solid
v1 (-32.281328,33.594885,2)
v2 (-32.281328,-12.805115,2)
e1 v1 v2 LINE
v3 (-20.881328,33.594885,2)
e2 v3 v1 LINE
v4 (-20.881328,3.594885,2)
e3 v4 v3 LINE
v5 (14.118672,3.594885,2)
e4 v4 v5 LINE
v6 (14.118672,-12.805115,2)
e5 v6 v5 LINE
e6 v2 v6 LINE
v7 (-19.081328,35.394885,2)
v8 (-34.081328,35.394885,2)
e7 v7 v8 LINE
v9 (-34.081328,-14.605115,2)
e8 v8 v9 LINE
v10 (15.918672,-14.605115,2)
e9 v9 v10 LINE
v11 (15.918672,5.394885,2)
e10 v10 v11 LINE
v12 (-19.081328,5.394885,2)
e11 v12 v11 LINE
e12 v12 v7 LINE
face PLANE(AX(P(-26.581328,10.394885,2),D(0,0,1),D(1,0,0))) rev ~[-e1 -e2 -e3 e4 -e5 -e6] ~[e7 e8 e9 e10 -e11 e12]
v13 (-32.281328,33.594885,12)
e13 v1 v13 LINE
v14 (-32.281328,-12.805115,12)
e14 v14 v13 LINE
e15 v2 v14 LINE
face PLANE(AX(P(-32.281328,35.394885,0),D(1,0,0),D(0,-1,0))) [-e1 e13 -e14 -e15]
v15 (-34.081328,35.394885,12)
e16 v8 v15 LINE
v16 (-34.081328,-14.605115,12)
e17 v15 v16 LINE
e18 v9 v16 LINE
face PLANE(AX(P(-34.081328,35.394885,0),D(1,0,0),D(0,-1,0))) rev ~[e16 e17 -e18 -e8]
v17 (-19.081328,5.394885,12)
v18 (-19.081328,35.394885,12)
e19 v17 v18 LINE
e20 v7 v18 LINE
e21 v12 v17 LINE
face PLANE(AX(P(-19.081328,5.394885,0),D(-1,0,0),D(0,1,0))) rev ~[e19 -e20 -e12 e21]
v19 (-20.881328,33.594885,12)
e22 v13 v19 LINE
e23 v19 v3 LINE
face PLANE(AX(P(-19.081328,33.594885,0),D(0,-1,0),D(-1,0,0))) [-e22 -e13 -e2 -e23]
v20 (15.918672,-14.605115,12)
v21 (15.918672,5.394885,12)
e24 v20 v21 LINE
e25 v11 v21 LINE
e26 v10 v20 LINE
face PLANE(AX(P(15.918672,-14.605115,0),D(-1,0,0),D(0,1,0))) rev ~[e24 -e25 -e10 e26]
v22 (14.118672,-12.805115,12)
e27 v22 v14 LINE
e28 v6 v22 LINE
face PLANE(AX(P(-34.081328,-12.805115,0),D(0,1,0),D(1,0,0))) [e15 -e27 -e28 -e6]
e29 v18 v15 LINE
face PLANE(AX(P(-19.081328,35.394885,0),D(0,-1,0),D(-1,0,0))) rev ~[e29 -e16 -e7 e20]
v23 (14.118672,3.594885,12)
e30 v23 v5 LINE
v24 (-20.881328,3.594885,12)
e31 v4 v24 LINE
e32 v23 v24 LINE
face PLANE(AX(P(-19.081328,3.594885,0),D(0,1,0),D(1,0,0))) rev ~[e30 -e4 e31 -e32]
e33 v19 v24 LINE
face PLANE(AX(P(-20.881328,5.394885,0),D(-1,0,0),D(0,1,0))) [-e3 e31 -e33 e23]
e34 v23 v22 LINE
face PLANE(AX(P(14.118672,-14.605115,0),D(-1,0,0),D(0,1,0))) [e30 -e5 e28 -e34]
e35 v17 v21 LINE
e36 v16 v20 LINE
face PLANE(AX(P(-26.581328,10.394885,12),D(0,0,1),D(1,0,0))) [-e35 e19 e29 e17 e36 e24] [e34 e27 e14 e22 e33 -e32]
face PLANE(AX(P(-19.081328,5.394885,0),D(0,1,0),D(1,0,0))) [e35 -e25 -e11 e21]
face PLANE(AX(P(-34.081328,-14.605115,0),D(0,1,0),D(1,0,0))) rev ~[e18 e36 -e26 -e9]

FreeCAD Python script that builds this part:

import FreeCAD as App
import Part
import Sketcher


def faces_at(feature, points):
    """Names of the faces that lie closest to the given points."""
    faces = feature.Shape.Faces
    near = lambda p: min(range(len(faces)), key=lambda i: faces[i].distToShape(Part.Vertex(*p))[0])
    return sorted({f"Face{near(p) + 1}" for p in points})


def add_polygon(sketch, points):
    """Adds a closed chain of lines whose ends are joined by coincident constraints."""
    first, n = sketch.GeometryCount, len(points)
    for a, b in zip(points, points[1:] + points[:1]):
        sketch.addGeometry(Part.LineSegment(App.Vector(*a, 0), App.Vector(*b, 0)), False)
    for i in range(n):
        sketch.addConstraint(Sketcher.Constraint("Coincident", first + i, 2, first + (i + 1) % n, 1))

doc = App.newDocument("Part")
params = doc.addObject("Spreadsheet::Sheet", "Params")
for row, (alias, value) in enumerate([
    ("sketch1_width", "15 mm"),
    ("sketch1_width2", "50 mm"),
    ("sketch1_height", "20 mm"),
    ("pad1_length", "12 mm"),
    ("thickness_wall", "1.8 mm"),
    ("sketch2_width", "15 mm"),
    ("sketch2_width2", "50 mm"),
    ("sketch2_height", "20 mm"),
    ("pocket1_length", "2 mm"),
], start=1):
    params.set(f"A{row}", alias)
    params.set(f"B{row}", "=" + value)
    params.setAlias(f"B{row}", alias)

body = doc.addObject("PartDesign::Body", "Body")

sketch1 = body.newObject("Sketcher::SketchObject", "Sketch")
sketch1.AttachmentSupport = (doc.getObject("XY_Plane"), [""])
sketch1.MapMode = "FlatFace"
add_polygon(sketch1, [(-19, 35), (-34, 35), (-34, -15), (16, -15), (16, 5), (-19, 5)])
sketch1.addConstraint([
    Sketcher.Constraint("Horizontal", 0),
    Sketcher.Constraint("Vertical", 1),
    Sketcher.Constraint("Horizontal", 2),
    Sketcher.Constraint("Vertical", 3),
    Sketcher.Constraint("Horizontal", 4),
    Sketcher.Constraint("Vertical", 5),
    Sketcher.Constraint("Equal", 2, 1),
    Sketcher.Constraint("DistanceX", 0, 2, 0, 1, 15.0),
    Sketcher.Constraint("DistanceX", 2, 1, 2, 2, 50.0),
    Sketcher.Constraint("DistanceY", 3, 1, 3, 2, 20.0),
    Sketcher.Constraint("DistanceX", 0, 2, -1, 1, 34.081328),
    Sketcher.Constraint("DistanceY", -1, 1, 0, 2, 35.394885),
])
sketch1.setExpression("Constraints[13]", "Params.sketch1_width")
sketch1.setExpression("Constraints[14]", "Params.sketch1_width2")
sketch1.setExpression("Constraints[15]", "Params.sketch1_height")
pad1 = body.newObject("PartDesign::Pad", "Pad")
pad1.Profile = sketch1
pad1.setExpression("Length", "Params.pad1_length")
doc.recompute()

thickness = body.newObject("PartDesign::Thickness", "Thickness")
thickness.Base = (pad1, faces_at(pad1, [(-19.081, 0.395, 12)]))
thickness.setExpression("Value", "Params.thickness_wall")
thickness.Reversed = True
thickness.Join = "Intersection"

sketch2 = body.newObject("Sketcher::SketchObject", "Sketch001")
sketch2.AttachmentSupport = (doc.getObject("XY_Plane"), [""])
sketch2.MapMode = "FlatFace"
add_polygon(sketch2, [(-19, 35), (-34, 35), (-34, -15), (16, -15), (16, 5), (-19, 5)])
sketch2.addConstraint([
    Sketcher.Constraint("Horizontal", 0),
    Sketcher.Constraint("Vertical", 1),
    Sketcher.Constraint("Horizontal", 2),
    Sketcher.Constraint("Vertical", 3),
    Sketcher.Constraint("Horizontal", 4),
    Sketcher.Constraint("Vertical", 5),
    Sketcher.Constraint("Equal", 2, 1),
    Sketcher.Constraint("DistanceX", 0, 2, 0, 1, 15.0),
    Sketcher.Constraint("DistanceX", 2, 1, 2, 2, 50.0),
    Sketcher.Constraint("DistanceY", 3, 1, 3, 2, 20.0),
    Sketcher.Constraint("DistanceX", 0, 2, -1, 1, 34.081328),
    Sketcher.Constraint("DistanceY", -1, 1, 0, 2, 35.394885),
])
sketch2.setExpression("Constraints[13]", "Params.sketch2_width")
sketch2.setExpression("Constraints[14]", "Params.sketch2_width2")
sketch2.setExpression("Constraints[15]", "Params.sketch2_height")
pocket1 = body.newObject("PartDesign::Pocket", "Pocket")
pocket1.Profile = sketch2
pocket1.setExpression("Length", "Params.pocket1_length")
pocket1.Reversed = True

doc.recompute()
